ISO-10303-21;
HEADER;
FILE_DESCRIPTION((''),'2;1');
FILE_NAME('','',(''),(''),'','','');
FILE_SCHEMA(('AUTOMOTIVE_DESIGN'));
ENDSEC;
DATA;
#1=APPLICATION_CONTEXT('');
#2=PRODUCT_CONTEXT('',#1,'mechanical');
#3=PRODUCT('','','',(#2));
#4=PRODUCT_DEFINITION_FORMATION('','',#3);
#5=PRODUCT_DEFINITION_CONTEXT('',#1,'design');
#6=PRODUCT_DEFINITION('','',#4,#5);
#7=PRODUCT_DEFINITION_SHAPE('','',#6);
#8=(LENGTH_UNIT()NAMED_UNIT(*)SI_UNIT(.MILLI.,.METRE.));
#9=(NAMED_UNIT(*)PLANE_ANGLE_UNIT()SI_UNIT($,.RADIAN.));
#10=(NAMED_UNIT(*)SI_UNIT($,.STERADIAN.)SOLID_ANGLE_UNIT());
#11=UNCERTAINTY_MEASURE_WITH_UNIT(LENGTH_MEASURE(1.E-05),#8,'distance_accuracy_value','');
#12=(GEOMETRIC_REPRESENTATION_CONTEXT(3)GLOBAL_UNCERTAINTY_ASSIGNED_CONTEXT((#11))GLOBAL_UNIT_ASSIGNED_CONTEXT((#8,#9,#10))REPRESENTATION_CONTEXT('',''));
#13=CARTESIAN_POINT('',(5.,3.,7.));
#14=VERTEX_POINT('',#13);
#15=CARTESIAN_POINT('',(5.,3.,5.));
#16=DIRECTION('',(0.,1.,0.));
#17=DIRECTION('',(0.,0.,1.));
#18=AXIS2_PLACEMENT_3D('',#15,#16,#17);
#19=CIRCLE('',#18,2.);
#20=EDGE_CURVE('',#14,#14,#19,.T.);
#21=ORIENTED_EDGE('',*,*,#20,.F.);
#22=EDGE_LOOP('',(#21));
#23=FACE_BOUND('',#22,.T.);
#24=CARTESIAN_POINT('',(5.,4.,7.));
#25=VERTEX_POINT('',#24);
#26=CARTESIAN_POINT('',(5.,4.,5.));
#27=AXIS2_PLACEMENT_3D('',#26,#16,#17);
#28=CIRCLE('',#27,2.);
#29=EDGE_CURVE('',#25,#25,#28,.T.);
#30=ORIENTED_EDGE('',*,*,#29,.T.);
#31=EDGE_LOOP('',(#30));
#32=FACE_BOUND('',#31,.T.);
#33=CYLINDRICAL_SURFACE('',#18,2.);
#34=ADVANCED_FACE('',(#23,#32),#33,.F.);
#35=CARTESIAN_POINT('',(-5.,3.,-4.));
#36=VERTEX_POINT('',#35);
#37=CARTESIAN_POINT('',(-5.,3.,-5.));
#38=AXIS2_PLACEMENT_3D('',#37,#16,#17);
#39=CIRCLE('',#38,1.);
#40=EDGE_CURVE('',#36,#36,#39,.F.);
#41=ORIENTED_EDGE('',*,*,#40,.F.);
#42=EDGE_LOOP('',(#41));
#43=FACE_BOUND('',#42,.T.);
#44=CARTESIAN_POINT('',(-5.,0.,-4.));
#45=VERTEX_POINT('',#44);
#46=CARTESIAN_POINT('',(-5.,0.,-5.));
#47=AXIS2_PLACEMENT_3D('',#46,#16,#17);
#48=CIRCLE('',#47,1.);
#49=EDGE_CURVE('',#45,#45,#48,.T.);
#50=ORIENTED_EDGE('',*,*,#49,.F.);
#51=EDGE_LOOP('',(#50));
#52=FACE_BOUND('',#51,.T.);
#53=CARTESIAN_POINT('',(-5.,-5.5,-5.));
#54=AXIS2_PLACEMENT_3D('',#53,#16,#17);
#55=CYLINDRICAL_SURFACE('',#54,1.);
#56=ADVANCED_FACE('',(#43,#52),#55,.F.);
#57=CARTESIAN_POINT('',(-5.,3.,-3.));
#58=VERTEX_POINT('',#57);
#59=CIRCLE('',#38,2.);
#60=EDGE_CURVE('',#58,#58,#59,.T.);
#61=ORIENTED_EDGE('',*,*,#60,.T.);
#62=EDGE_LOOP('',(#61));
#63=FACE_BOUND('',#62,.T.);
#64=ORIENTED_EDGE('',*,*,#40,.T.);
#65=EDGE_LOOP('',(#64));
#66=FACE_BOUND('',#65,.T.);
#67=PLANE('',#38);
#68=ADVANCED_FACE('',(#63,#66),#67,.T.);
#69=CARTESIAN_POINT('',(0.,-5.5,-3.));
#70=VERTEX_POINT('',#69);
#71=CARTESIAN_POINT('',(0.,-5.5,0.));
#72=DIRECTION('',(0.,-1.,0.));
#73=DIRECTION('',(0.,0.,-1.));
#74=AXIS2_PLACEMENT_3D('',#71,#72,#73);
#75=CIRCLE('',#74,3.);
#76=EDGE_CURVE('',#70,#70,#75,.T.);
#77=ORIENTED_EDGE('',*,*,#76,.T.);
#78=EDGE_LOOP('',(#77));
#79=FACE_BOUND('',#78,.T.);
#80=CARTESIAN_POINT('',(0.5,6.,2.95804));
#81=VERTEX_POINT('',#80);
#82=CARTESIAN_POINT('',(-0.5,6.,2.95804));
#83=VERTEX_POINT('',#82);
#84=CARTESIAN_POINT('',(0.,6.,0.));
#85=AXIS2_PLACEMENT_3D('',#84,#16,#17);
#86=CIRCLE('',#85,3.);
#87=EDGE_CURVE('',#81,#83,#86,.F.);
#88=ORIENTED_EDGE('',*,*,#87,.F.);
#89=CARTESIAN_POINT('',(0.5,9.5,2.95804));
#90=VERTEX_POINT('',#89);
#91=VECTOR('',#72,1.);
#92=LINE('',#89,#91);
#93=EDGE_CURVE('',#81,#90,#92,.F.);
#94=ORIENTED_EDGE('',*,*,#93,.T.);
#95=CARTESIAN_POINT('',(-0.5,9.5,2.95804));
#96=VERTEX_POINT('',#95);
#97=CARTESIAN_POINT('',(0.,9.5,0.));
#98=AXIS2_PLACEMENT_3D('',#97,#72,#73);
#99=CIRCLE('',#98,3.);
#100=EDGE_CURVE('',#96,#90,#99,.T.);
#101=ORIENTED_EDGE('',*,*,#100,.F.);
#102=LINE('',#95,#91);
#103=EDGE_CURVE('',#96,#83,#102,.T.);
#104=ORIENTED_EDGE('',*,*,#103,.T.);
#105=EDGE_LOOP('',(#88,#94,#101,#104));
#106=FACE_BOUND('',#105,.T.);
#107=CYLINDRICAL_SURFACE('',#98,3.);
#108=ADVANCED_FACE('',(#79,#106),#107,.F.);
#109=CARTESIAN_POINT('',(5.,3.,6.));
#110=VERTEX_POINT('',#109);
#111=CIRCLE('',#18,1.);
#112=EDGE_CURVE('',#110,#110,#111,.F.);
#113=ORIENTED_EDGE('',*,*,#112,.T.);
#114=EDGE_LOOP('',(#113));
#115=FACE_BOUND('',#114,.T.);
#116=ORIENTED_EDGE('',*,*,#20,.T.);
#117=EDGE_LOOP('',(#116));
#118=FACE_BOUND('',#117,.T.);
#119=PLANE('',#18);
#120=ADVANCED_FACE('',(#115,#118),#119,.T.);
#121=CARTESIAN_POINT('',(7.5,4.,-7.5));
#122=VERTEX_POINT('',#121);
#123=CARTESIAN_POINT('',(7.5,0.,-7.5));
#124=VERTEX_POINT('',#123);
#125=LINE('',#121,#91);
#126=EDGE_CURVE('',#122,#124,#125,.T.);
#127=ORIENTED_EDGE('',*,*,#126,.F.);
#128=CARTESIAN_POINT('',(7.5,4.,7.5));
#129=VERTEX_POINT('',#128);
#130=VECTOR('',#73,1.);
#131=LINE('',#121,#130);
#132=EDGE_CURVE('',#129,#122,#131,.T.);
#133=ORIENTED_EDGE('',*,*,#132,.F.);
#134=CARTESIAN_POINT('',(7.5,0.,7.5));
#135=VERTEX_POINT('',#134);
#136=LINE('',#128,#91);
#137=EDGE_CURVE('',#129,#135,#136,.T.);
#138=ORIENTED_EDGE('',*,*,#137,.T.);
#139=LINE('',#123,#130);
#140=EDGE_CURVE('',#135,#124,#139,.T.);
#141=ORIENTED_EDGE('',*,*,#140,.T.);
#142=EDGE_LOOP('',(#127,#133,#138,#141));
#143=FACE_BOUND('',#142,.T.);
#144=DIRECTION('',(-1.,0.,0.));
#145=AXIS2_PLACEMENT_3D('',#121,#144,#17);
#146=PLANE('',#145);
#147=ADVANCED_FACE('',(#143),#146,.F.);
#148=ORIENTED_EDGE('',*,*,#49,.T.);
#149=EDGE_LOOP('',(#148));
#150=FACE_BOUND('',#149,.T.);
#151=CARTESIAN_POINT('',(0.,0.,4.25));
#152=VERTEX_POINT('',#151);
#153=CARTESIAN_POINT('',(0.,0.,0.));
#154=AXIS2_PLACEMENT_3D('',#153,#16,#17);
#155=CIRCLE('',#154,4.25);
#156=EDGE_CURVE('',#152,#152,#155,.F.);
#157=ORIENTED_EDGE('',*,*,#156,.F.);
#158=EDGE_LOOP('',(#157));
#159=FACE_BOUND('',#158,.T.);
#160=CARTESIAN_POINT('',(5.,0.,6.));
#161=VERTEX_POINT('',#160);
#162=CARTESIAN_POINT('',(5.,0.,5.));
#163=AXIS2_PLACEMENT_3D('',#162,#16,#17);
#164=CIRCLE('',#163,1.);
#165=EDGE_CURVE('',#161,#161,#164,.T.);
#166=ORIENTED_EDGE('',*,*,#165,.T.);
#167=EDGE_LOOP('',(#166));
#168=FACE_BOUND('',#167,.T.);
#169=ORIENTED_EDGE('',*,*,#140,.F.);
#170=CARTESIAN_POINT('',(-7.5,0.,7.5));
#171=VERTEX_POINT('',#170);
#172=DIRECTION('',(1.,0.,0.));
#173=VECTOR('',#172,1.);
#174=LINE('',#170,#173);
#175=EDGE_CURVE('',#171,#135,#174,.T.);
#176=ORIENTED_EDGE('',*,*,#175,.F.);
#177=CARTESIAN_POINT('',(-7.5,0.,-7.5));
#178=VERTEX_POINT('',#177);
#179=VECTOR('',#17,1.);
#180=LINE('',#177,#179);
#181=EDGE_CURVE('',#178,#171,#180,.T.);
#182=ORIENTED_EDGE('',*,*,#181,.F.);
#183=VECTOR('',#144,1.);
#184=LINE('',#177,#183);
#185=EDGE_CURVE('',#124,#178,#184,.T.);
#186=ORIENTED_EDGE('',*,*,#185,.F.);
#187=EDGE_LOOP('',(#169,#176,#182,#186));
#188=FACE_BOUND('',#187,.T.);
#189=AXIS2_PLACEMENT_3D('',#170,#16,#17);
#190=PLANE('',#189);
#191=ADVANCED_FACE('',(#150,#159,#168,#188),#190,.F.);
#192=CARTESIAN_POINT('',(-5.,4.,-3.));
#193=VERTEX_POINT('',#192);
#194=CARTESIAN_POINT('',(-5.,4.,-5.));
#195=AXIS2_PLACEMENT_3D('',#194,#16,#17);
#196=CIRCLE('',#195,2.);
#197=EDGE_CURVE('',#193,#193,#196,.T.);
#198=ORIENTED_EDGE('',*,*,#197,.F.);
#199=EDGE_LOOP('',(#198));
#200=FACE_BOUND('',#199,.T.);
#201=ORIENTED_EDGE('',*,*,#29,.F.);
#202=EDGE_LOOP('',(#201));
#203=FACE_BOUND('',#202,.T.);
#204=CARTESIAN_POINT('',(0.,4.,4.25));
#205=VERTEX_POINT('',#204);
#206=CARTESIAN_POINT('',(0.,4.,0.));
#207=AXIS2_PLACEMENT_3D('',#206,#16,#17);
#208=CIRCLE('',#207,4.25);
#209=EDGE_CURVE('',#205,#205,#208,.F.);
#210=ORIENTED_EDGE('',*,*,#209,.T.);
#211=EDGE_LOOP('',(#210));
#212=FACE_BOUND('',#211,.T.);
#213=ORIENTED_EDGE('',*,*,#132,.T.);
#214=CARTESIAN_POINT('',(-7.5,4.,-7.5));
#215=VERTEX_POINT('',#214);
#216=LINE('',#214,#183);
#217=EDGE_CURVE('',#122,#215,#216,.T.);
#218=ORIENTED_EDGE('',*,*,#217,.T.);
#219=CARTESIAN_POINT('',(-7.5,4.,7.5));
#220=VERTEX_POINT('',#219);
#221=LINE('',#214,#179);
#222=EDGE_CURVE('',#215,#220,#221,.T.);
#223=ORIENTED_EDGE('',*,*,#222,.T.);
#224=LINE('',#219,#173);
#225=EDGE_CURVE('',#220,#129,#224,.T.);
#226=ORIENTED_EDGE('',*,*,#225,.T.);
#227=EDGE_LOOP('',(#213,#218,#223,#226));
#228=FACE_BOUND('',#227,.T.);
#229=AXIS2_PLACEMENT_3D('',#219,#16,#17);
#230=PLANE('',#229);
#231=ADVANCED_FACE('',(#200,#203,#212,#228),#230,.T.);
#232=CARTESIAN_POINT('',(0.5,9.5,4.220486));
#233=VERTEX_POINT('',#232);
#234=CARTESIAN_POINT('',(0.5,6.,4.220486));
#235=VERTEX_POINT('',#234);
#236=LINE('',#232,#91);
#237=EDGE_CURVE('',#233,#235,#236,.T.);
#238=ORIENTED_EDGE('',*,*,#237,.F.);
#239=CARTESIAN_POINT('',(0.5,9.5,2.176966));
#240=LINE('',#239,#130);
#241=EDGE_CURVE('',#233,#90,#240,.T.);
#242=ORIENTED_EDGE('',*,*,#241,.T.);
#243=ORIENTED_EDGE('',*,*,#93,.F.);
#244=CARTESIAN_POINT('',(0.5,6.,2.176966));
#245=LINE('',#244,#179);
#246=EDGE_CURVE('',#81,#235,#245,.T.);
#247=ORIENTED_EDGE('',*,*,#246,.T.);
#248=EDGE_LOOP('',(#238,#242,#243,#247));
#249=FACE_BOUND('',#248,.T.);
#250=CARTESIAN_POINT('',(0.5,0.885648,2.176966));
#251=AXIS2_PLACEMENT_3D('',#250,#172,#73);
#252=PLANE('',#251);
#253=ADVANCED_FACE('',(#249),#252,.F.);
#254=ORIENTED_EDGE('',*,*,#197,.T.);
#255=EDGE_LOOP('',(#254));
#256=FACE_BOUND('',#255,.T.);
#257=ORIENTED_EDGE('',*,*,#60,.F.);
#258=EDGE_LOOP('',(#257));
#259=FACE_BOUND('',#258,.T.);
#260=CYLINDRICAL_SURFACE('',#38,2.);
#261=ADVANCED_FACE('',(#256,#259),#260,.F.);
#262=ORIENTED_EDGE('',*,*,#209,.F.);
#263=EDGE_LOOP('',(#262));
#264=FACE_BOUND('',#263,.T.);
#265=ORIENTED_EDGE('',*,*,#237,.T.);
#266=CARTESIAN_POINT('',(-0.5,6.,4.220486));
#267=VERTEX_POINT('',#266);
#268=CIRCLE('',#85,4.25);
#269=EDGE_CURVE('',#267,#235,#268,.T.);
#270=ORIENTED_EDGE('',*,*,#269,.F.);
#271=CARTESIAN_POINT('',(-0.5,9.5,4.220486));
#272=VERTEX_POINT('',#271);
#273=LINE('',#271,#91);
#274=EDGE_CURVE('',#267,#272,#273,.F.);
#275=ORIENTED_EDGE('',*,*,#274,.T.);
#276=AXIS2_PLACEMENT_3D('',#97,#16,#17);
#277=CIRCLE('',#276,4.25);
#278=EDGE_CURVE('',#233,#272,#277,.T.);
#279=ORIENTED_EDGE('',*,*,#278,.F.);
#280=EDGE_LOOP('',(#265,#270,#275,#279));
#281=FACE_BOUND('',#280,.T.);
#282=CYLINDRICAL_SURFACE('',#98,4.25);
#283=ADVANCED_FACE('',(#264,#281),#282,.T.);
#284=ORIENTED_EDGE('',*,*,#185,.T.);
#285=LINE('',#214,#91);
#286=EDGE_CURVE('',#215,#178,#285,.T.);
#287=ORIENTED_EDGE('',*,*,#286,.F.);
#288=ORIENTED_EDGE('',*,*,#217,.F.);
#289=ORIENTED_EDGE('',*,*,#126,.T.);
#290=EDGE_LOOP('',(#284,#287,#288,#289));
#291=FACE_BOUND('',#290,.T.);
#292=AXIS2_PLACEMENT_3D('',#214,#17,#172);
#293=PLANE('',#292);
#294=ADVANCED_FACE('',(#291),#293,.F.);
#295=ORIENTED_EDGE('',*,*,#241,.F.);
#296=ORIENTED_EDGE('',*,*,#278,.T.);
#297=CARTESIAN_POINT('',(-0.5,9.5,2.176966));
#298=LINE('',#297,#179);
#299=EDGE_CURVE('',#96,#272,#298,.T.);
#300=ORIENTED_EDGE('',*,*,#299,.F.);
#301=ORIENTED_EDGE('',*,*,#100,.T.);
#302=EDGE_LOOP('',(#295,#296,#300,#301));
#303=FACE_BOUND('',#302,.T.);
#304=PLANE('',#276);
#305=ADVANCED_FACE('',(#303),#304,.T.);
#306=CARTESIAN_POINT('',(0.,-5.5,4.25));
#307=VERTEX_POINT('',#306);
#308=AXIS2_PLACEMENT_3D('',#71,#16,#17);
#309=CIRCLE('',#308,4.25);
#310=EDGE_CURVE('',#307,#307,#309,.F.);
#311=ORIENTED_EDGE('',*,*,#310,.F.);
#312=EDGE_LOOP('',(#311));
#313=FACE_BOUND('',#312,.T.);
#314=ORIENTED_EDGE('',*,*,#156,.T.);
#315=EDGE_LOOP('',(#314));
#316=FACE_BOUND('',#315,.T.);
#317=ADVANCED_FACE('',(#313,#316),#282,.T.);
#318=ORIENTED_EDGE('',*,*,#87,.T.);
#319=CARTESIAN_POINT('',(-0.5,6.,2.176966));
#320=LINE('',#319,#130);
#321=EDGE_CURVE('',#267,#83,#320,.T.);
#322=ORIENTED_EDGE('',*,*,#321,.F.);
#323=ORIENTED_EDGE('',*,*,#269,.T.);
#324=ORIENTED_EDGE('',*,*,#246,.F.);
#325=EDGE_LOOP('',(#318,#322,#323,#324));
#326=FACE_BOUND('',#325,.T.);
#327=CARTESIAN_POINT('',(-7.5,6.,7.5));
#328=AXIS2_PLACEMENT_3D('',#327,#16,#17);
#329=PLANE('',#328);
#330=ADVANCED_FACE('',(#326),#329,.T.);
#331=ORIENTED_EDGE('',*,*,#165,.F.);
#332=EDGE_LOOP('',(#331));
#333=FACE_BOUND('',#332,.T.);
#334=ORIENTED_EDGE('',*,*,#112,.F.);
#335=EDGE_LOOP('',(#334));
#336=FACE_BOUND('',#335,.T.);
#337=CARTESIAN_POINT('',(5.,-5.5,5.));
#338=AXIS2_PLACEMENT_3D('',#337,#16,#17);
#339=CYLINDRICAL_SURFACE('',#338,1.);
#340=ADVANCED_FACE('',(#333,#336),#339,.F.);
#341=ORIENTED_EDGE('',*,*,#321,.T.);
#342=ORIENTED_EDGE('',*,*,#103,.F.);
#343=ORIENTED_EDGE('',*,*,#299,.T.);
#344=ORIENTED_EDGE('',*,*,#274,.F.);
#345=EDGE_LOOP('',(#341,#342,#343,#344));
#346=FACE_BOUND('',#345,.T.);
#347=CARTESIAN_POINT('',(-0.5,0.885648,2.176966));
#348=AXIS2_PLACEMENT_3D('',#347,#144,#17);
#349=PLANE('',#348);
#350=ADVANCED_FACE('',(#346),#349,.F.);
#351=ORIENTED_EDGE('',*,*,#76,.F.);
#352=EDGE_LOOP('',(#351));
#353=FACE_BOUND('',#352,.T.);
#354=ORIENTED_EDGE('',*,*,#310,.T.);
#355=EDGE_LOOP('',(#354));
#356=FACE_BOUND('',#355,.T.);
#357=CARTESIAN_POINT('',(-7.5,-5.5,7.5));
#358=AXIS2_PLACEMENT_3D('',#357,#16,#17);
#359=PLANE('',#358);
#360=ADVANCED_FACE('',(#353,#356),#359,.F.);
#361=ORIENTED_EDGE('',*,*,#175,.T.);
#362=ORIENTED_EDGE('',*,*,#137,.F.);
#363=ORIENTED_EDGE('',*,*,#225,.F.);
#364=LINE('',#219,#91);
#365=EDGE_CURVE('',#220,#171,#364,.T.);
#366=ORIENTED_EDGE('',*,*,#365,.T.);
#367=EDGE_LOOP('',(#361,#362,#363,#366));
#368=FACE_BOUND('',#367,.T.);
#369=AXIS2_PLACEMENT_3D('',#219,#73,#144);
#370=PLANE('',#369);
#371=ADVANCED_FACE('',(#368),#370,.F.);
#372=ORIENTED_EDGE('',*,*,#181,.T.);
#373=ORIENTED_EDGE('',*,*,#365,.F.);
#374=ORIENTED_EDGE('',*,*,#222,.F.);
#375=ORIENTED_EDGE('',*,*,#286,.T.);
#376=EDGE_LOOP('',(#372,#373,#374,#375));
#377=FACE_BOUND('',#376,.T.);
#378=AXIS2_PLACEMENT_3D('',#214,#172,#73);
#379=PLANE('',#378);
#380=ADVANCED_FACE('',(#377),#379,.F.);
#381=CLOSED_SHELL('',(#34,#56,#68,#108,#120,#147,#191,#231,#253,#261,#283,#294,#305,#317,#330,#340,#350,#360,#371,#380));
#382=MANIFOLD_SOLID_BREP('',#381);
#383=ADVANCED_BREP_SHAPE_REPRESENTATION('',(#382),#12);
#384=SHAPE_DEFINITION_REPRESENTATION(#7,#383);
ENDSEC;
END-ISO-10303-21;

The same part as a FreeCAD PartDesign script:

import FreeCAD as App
import Part
import Sketcher
Q = App.Units.Quantity

doc = App.newDocument("Part")
body = doc.addObject("PartDesign::Body", "Body")

# Sketch on XZ plane
sketch1 = doc.addObject("Sketcher::SketchObject", "Sketch")
body.addObject(sketch1)
sketch1.AttachmentSupport = (doc.XZ_Plane, [""])
sketch1.MapMode = "FlatFace"
sketch1.addGeometry([
    Part.LineSegment(App.Vector(-8, -8, 0), App.Vector(-8, 8, 0)),
    Part.LineSegment(App.Vector(-8, 8, 0), App.Vector(8, 8, 0)),
    Part.LineSegment(App.Vector(8, 8, 0), App.Vector(8, -8, 0)),
    Part.LineSegment(App.Vector(8, -8, 0), App.Vector(-8, -8, 0)),
], False)
sketch1.addConstraint([
    Sketcher.Constraint("Coincident", 0, 2, 1, 1),
    Sketcher.Constraint("Coincident", 1, 2, 2, 1),
    Sketcher.Constraint("Coincident", 2, 2, 3, 1),
    Sketcher.Constraint("Coincident", 3, 2, 0, 1),
    Sketcher.Constraint("Vertical", 0),
    Sketcher.Constraint("Horizontal", 1),
    Sketcher.Constraint("Vertical", 2),
    Sketcher.Constraint("Horizontal", 3),
    Sketcher.Constraint("Symmetric", 0, 2, 2, 2, -1, 1),
    Sketcher.Constraint("Equal", 3, 0),
    Sketcher.Constraint("DistanceX", 1, 1, 1, 2, Q("15 mm")),
])
pad1 = doc.addObject("PartDesign::Pad", "Pad")
body.addObject(pad1)
pad1.Profile = sketch1
pad1.Length = 4
pad1.Reversed = True

# Sketch on XZ plane
sketch2 = doc.addObject("Sketcher::SketchObject", "Sketch001")
body.addObject(sketch2)
sketch2.AttachmentSupport = (doc.XZ_Plane, [""])
sketch2.MapMode = "FlatFace"
sketch2.AttachmentOffset = App.Placement(App.Vector(0, 0, -4), App.Rotation())
sketch2.addGeometry(Part.Circle(App.Vector(0, 0, 0), App.Vector(0, 0, 1), 4.2), False)
sketch2.addConstraint([
    Sketcher.Constraint("Coincident", 0, 3, -1, 1),
    Sketcher.Constraint("Diameter", 0, Q("8.5 mm")),
])
pad2 = doc.addObject("PartDesign::Pad", "Pad001")
body.addObject(pad2)
pad2.Profile = sketch2
pad2.Type = "TwoLengths"
pad2.Length = 5.5
pad2.Length2 = 9.5
pad2.Reversed = True

# Sketch on XZ plane
sketch3 = doc.addObject("Sketcher::SketchObject", "Sketch002")
body.addObject(sketch3)
sketch3.AttachmentSupport = (doc.XZ_Plane, [""])
sketch3.MapMode = "FlatFace"
sketch3.AttachmentOffset = App.Placement(App.Vector(0, 0, 5.5), App.Rotation())
sketch3.addGeometry(Part.Circle(App.Vector(0, 0, 0), App.Vector(0, 0, 1), 3), False)
sketch3.addConstraint([
    Sketcher.Constraint("Coincident", 0, 3, -1, 1),
    Sketcher.Constraint("Diameter", 0, Q("6 mm")),
])
pocket1 = doc.addObject("PartDesign::Pocket", "Pocket")
body.addObject(pocket1)
pocket1.Profile = sketch3
pocket1.Type = "ThroughAll"

# Sketch on XZ plane
sketch4 = doc.addObject("Sketcher::SketchObject", "Sketch003")
body.addObject(sketch4)
sketch4.AttachmentSupport = (doc.XZ_Plane, [""])
sketch4.MapMode = "FlatFace"
sketch4.AttachmentOffset = App.Placement(App.Vector(0, 0, -4), App.Rotation())
sketch4.addGeometry([
    Part.Circle(App.Vector(-5, -5, 0), App.Vector(0, 0, 1), 1),
    Part.Circle(App.Vector(5, 5, 0), App.Vector(0, 0, 1), 1),
], False)
sketch4.addConstraint([
    Sketcher.Constraint("Equal", 0, 1),
    Sketcher.Constraint("Symmetric", 0, 3, 1, 3, -1, 1),
    Sketcher.Constraint("Diameter", 0, Q("2 mm")),
    Sketcher.Constraint("DistanceX", 0, 3, -1, 1, Q("5 mm")),
    Sketcher.Constraint("DistanceY", 0, 3, -1, 1, Q("5 mm")),
])
pocket2 = doc.addObject("PartDesign::Pocket", "Pocket001")
body.addObject(pocket2)
pocket2.Profile = sketch4
pocket2.Type = "ThroughAll"
pocket2.Reversed = True

# Sketch on XZ plane
sketch5 = doc.addObject("Sketcher::SketchObject", "Sketch004")
body.addObject(sketch5)
sketch5.AttachmentSupport = (doc.XZ_Plane, [""])
sketch5.MapMode = "FlatFace"
sketch5.AttachmentOffset = App.Placement(App.Vector(0, 0, -4), App.Rotation())
sketch5.addGeometry([
    Part.Circle(App.Vector(-5, -5, 0), App.Vector(0, 0, 1), 2),
    Part.Circle(App.Vector(5, 5, 0), App.Vector(0, 0, 1), 2),
], False)
sketch5.addConstraint([
    Sketcher.Constraint("Equal", 0, 1),
    Sketcher.Constraint("Symmetric", 0, 3, 1, 3, -1, 1),
    Sketcher.Constraint("Diameter", 0, Q("4 mm")),
    Sketcher.Constraint("DistanceX", 0, 3, -1, 1, Q("5 mm")),
    Sketcher.Constraint("DistanceY", 0, 3, -1, 1, Q("5 mm")),
])
pocket3 = doc.addObject("PartDesign::Pocket", "Pocket002")
body.addObject(pocket3)
pocket3.Profile = sketch5
pocket3.Length = 1
pocket3.Reversed = True

# Sketch on XZ plane
sketch6 = doc.addObject("Sketcher::SketchObject", "Sketch005")
body.addObject(sketch6)
sketch6.AttachmentSupport = (doc.XZ_Plane, [""])
sketch6.MapMode = "FlatFace"
sketch6.AttachmentOffset = App.Placement(App.Vector(0, 0, -9.5), App.Rotation())
sketch6.addGeometry([
    Part.LineSegment(App.Vector(0.5, 5.1, 0), App.Vector(0.5, 2.2, 0)),
    Part.LineSegment(App.Vector(0.5, 2.2, 0), App.Vector(-0.5, 2.2, 0)),
    Part.LineSegment(App.Vector(-0.5, 2.2, 0), App.Vector(-0.5, 5.1, 0)),
    Part.LineSegment(App.Vector(-0.5, 5.1, 0), App.Vector(0.5, 5.1, 0)),
], False)
sketch6.addConstraint([
    Sketcher.Constraint("Coincident", 0, 2, 1, 1),
    Sketcher.Constraint("Coincident", 1, 2, 2, 1),
    Sketcher.Constraint("Coincident", 2, 2, 3, 1),
    Sketcher.Constraint("Coincident", 3, 2, 0, 1),
    Sketcher.Constraint("Vertical", 0),
    Sketcher.Constraint("Horizontal", 1),
    Sketcher.Constraint("Vertical", 2),
    Sketcher.Constraint("Horizontal", 3),
    Sketcher.Constraint("DistanceX", 1, 2, 1, 1, Q("1 mm")),
    Sketcher.Constraint("DistanceX", -1, 1, 0, 2, Q("0.5 mm")),
    Sketcher.Constraint("DistanceY", 0, 2, 0, 1, Q("2.949438 mm")),
    Sketcher.Constraint("DistanceY", -1, 1, 0, 2, Q("2.176966 mm")),
])
pocket4 = doc.addObject("PartDesign::Pocket", "Pocket003")
body.addObject(pocket4)
pocket4.Profile = sketch6
pocket4.Length = 3.5
pocket4.Reversed = True

doc.recompute()
